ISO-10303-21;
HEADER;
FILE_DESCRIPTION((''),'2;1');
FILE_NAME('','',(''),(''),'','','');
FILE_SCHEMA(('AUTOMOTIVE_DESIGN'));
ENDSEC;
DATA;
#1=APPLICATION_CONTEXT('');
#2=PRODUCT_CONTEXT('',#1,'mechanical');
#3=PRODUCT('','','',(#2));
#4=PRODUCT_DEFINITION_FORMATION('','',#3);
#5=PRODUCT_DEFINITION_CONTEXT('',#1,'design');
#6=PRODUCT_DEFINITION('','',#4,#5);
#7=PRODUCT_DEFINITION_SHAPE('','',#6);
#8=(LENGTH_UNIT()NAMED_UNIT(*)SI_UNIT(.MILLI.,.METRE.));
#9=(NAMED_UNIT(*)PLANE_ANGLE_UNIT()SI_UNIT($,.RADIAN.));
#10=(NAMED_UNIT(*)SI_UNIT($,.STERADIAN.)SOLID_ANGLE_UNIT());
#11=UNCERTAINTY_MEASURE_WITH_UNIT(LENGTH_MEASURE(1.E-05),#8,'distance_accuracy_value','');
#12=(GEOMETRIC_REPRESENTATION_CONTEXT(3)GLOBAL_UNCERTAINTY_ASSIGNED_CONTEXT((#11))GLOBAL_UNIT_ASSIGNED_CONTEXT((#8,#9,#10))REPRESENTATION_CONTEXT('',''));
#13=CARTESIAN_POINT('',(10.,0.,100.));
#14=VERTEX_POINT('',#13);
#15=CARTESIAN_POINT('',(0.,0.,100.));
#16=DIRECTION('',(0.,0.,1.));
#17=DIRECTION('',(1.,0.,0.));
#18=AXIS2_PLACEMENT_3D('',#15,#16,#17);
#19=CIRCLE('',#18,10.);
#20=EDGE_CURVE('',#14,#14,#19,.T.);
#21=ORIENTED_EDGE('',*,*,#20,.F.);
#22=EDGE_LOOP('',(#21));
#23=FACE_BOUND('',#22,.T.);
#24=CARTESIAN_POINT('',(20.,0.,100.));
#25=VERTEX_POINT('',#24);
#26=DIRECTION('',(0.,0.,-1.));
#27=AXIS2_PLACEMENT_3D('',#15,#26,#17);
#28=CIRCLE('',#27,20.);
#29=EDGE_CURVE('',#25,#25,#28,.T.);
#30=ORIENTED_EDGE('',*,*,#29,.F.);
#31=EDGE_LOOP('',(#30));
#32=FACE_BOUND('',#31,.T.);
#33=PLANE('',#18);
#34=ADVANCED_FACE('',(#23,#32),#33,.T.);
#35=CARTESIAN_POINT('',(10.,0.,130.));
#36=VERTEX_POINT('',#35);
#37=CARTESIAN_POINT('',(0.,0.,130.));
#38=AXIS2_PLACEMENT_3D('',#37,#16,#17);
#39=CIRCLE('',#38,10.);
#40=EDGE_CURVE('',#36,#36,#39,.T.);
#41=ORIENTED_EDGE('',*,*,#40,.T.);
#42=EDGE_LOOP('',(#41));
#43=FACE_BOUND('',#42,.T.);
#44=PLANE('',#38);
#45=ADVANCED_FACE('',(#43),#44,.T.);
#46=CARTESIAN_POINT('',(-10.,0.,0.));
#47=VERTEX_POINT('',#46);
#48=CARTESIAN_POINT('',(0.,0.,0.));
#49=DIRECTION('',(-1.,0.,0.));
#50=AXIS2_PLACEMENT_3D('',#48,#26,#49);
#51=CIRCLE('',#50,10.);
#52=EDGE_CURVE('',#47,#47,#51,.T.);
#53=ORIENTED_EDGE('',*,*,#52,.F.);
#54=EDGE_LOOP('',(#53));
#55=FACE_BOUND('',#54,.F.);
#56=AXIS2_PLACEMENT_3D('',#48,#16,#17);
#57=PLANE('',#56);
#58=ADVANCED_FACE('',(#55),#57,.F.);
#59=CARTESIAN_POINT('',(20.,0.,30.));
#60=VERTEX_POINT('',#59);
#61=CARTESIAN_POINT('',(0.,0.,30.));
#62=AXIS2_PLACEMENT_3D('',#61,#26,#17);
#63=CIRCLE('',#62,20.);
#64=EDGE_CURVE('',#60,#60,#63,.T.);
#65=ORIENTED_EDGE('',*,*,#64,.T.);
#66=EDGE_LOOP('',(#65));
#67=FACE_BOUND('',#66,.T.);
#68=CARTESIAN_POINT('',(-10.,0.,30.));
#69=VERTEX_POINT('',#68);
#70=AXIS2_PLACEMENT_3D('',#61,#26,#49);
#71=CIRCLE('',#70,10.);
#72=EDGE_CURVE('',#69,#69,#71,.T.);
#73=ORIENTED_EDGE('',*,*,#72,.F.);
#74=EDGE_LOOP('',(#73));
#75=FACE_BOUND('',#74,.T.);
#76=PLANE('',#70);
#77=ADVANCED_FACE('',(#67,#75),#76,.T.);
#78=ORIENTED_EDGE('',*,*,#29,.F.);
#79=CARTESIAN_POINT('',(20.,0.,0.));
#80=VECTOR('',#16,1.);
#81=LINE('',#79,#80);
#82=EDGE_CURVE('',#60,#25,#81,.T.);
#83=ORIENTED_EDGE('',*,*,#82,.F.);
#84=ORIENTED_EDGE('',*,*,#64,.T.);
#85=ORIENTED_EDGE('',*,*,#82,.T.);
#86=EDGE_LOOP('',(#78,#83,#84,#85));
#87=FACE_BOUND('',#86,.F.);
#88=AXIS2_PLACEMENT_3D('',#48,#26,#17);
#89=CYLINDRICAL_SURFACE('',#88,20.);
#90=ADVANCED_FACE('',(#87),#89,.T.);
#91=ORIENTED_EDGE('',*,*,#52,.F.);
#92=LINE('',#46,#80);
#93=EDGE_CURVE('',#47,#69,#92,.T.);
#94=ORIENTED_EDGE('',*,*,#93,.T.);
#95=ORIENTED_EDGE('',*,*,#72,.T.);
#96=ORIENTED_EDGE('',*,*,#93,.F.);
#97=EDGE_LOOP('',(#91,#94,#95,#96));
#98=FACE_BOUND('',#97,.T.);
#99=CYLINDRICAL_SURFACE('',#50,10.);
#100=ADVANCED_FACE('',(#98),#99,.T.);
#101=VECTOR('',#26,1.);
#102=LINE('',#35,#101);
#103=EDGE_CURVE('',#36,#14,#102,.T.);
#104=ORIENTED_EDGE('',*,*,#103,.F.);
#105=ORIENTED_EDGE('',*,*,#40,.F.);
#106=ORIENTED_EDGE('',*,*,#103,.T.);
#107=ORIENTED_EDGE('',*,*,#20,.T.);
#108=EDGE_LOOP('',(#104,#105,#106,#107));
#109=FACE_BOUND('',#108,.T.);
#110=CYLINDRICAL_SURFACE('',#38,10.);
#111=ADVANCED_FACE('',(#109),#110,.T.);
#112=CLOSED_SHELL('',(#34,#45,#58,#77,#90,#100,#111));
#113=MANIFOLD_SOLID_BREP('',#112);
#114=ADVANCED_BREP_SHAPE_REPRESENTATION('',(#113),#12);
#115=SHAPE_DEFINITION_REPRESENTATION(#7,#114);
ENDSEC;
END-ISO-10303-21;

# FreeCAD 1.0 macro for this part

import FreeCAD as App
import Part
import Sketcher

V = App.Vector

doc = App.newDocument("Part")
body = doc.addObject("PartDesign::Body", "Body")

# Sketch on XY plane
sketch1 = body.newObject("Sketcher::SketchObject", "Sketch")
sketch1.AttachmentSupport = (doc.getObject("XY_Plane"), [""])
sketch1.MapMode = "FlatFace"
sketch1.addGeometry(Part.Circle(V(0, 0, 0), V(0, 0, 1), 20), False)
sketch1.addConstraint([
    Sketcher.Constraint("Coincident", 0, 3, -1, 1),
    Sketcher.Constraint("Diameter", 0, 40.0),
])
pad1 = body.newObject("PartDesign::Pad", "Pad")
pad1.Profile = sketch1
pad1.Length = 130

# Sketch on XY plane
sketch2 = body.newObject("Sketcher::SketchObject", "Sketch001")
sketch2.AttachmentSupport = (doc.getObject("XY_Plane"), [""])
sketch2.MapMode = "FlatFace"
sketch2.AttachmentOffset = App.Placement(V(0, 0, 130), App.Rotation())
sketch2.addGeometry([
    Part.LineSegment(V(-35.177, 35.177, 0), V(-35.177, -35.177, 0)),  # 0
    Part.LineSegment(V(-35.177, -35.177, 0), V(35.177, -35.177, 0)),  # 1
    Part.LineSegment(V(35.177, -35.177, 0), V(35.177, 35.177, 0)),  # 2
    Part.LineSegment(V(35.177, 35.177, 0), V(-35.177, 35.177, 0)),  # 3
    Part.Circle(V(0, 0, 0), V(0, 0, 1), 10),  # 4
], False)
sketch2.addConstraint([
    Sketcher.Constraint("Coincident", 0, 2, 1, 1),
    Sketcher.Constraint("Coincident", 1, 2, 2, 1),
    Sketcher.Constraint("Coincident", 2, 2, 3, 1),
    Sketcher.Constraint("Coincident", 3, 2, 0, 1),
    Sketcher.Constraint("Vertical", 0),
    Sketcher.Constraint("Horizontal", 1),
    Sketcher.Constraint("Vertical", 2),
    Sketcher.Constraint("Horizontal", 3),
    Sketcher.Constraint("Coincident", 4, 3, -1, 1),
    Sketcher.Constraint("Symmetric", 0, 2, 2, 2, -1, 1),
    Sketcher.Constraint("Equal", 3, 0),
    Sketcher.Constraint("Diameter", 4, 20.0),
    Sketcher.Constraint("DistanceX", 1, 1, 1, 2, 70.354),
])
pocket1 = body.newObject("PartDesign::Pocket", "Pocket")
pocket1.Profile = sketch2
pocket1.Length = 30

# Sketch on XY plane
sketch3 = body.newObject("Sketcher::SketchObject", "Sketch002")
sketch3.AttachmentSupport = (doc.getObject("XY_Plane"), [""])
sketch3.MapMode = "FlatFace"
sketch3.addGeometry([
    Part.LineSegment(V(35.177, 35.177, 0), V(35.177, -35.177, 0)),  # 0
    Part.LineSegment(V(35.177, -35.177, 0), V(-35.177, -35.177, 0)),  # 1
    Part.LineSegment(V(-35.177, -35.177, 0), V(-35.177, 35.177, 0)),  # 2
    Part.LineSegment(V(-35.177, 35.177, 0), V(35.177, 35.177, 0)),  # 3
    Part.Circle(V(0, 0, 0), V(0, 0, 1), 10),  # 4
], False)
sketch3.addConstraint([
    Sketcher.Constraint("Coincident", 0, 2, 1, 1),
    Sketcher.Constraint("Coincident", 1, 2, 2, 1),
    Sketcher.Constraint("Coincident", 2, 2, 3, 1),
    Sketcher.Constraint("Coincident", 3, 2, 0, 1),
    Sketcher.Constraint("Vertical", 0),
    Sketcher.Constraint("Horizontal", 1),
    Sketcher.Constraint("Vertical", 2),
    Sketcher.Constraint("Horizontal", 3),
    Sketcher.Constraint("Coincident", 4, 3, -1, 1),
    Sketcher.Constraint("Symmetric", 0, 2, 2, 2, -1, 1),
    Sketcher.Constraint("Equal", 3, 0),
    Sketcher.Constraint("Diameter", 4, 20.0),
    Sketcher.Constraint("DistanceX", 1, 2, 1, 1, 70.354),
])
pocket2 = body.newObject("PartDesign::Pocket", "Pocket001")
pocket2.Profile = sketch3
pocket2.Length = 30
pocket2.Reversed = True

doc.recompute()
